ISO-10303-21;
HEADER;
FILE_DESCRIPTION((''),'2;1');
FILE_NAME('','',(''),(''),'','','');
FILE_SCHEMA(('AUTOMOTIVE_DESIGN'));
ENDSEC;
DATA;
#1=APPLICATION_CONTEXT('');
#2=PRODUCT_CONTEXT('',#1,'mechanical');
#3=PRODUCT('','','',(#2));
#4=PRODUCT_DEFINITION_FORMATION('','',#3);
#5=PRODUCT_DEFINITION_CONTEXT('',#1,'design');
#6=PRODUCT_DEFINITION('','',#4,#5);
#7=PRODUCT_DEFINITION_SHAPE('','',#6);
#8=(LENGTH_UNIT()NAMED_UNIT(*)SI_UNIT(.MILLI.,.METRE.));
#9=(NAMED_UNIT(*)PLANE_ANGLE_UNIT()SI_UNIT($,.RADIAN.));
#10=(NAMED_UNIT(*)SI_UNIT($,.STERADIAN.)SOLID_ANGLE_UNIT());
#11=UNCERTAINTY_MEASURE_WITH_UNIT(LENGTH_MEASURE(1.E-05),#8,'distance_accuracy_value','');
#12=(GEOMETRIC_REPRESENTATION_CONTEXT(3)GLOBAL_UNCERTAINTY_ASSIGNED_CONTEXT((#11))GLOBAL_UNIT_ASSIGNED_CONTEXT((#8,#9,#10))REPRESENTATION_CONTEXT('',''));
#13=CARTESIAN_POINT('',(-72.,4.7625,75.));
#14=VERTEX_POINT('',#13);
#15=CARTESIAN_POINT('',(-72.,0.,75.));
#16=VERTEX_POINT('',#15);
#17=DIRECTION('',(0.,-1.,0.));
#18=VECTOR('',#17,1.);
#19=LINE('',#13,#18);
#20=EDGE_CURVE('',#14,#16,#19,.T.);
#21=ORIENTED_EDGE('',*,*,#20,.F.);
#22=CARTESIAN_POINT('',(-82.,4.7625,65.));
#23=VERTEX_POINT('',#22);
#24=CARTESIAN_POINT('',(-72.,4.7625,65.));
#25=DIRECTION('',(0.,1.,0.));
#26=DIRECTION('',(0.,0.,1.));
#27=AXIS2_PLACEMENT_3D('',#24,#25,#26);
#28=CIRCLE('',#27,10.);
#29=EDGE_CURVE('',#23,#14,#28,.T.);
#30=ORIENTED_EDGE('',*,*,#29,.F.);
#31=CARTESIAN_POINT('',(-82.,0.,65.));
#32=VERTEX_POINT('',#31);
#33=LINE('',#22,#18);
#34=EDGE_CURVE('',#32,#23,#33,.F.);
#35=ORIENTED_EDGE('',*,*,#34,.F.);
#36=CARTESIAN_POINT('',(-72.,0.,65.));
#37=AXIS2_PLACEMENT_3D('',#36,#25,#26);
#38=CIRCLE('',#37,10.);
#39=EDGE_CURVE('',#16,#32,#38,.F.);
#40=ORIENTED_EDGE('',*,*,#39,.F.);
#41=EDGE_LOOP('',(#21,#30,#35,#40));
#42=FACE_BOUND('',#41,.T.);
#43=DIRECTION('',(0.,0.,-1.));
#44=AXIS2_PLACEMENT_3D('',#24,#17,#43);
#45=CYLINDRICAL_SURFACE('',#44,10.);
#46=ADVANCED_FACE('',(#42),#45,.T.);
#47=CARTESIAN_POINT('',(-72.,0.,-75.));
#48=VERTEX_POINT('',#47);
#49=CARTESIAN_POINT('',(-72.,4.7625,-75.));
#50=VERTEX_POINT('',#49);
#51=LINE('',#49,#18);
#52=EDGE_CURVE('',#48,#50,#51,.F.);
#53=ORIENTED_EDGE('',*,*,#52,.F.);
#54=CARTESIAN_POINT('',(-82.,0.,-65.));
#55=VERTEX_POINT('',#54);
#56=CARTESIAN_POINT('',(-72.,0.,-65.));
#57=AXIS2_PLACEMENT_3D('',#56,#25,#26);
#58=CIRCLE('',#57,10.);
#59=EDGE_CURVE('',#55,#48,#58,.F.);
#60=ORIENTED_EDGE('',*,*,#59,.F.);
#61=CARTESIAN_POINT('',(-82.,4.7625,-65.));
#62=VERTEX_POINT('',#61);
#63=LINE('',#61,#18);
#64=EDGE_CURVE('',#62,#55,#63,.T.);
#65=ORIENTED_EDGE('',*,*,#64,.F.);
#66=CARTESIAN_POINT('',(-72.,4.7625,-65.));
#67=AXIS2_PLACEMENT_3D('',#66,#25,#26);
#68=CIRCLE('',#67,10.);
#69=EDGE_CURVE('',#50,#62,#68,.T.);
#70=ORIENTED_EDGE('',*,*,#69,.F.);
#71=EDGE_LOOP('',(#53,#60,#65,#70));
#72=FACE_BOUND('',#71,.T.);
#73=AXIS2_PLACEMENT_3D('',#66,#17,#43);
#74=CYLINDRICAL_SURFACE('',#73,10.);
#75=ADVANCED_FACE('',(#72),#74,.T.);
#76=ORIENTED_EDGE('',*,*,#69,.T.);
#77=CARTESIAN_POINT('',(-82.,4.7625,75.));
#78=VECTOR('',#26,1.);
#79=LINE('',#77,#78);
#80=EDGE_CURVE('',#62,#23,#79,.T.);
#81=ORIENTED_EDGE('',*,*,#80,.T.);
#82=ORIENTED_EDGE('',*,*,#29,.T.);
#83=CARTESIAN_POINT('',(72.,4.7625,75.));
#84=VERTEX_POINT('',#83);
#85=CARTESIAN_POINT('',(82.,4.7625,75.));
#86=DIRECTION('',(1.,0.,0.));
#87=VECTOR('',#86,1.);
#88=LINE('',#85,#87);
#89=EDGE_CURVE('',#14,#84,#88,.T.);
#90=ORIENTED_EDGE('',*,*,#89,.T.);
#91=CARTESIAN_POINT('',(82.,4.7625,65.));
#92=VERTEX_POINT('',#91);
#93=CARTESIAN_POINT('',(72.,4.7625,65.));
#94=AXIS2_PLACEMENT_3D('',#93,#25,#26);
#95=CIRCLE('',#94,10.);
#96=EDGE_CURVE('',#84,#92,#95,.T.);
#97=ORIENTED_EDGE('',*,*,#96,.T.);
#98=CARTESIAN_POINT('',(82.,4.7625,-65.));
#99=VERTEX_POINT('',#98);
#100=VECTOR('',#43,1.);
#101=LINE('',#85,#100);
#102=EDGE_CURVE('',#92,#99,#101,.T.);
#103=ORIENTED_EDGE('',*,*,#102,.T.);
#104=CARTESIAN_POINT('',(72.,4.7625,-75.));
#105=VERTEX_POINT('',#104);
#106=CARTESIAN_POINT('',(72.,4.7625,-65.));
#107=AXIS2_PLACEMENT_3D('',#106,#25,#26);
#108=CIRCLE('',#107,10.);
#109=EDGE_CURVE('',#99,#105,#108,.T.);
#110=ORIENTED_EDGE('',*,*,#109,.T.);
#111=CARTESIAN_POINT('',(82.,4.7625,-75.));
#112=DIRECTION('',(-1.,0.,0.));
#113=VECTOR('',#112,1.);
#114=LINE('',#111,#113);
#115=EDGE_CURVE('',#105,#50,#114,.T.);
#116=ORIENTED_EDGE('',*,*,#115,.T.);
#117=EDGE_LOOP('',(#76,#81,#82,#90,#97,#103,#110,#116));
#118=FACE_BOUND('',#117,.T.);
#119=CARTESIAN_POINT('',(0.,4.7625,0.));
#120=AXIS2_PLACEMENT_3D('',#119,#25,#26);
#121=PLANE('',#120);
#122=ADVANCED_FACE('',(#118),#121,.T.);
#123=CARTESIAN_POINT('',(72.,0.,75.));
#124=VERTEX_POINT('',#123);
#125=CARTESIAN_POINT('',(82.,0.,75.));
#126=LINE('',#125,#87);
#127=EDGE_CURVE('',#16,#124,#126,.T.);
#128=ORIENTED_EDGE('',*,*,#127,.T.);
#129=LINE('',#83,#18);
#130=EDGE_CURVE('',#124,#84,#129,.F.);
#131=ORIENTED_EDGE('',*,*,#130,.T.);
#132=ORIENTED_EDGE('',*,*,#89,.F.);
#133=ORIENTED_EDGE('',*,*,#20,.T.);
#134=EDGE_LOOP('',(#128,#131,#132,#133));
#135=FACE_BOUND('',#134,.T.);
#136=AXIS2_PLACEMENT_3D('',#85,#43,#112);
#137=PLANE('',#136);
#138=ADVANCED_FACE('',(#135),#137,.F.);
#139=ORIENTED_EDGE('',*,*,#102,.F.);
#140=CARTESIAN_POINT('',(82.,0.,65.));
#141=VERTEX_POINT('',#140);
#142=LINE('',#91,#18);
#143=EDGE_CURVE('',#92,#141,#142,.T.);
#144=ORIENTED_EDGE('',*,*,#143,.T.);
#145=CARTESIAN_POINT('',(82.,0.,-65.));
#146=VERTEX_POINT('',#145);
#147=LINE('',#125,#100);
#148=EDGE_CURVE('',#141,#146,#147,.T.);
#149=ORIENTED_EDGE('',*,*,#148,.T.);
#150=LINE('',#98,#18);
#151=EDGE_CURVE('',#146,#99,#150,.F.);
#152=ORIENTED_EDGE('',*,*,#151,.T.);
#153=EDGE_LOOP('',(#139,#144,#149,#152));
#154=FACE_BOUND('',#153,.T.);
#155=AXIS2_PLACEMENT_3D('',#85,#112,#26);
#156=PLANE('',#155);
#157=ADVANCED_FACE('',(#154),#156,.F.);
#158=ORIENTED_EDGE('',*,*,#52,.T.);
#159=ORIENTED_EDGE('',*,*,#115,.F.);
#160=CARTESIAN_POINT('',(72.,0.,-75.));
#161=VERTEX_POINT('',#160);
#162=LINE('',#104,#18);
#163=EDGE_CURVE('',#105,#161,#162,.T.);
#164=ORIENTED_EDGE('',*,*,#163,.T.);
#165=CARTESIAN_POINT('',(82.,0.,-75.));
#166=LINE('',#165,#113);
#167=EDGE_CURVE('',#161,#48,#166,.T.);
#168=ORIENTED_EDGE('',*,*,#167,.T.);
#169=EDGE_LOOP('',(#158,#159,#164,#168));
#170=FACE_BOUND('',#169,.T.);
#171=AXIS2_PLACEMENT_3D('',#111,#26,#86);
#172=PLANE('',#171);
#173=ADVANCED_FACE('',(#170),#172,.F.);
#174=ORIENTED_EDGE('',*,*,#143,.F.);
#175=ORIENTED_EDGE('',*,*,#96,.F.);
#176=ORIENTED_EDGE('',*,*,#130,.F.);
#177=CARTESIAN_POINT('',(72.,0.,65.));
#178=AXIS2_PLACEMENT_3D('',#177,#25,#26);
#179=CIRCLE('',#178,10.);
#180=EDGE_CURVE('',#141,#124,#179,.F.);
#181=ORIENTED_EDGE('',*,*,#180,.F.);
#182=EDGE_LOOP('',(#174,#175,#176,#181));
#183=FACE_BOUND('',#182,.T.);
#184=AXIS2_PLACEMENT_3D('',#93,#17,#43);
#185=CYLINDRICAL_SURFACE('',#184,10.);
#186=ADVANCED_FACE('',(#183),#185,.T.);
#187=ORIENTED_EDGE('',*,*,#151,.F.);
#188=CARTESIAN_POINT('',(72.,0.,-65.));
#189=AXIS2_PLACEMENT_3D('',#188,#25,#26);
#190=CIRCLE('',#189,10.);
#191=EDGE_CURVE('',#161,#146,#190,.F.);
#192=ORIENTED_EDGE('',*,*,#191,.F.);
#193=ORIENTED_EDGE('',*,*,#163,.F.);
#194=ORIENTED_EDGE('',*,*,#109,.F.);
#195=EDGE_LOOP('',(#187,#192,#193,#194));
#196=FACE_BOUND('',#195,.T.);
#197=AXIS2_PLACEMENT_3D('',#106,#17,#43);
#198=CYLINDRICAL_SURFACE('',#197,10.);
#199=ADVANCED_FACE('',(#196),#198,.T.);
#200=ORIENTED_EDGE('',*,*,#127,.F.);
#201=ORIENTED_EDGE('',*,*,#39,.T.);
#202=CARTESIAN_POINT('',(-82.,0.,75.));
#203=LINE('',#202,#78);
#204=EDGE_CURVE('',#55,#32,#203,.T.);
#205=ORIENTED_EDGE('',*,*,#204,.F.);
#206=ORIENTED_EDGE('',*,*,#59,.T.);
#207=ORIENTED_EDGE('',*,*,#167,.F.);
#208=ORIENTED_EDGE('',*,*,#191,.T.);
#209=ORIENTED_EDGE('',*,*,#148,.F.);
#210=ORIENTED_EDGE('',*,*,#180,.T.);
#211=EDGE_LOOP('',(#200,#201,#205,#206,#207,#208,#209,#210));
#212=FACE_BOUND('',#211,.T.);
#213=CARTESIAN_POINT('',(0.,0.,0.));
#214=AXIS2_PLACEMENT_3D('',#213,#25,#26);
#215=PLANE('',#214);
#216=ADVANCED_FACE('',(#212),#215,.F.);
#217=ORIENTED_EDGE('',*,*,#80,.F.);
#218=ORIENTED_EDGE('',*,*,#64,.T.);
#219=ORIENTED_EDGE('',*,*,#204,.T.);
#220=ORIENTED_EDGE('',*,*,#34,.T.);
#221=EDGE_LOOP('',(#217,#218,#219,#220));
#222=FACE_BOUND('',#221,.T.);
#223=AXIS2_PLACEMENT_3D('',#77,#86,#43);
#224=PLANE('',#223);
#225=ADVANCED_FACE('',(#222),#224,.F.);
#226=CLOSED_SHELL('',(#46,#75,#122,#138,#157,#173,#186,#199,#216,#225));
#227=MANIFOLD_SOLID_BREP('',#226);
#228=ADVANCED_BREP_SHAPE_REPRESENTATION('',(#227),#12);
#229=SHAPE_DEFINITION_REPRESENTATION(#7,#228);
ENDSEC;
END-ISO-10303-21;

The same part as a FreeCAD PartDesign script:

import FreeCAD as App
import Part
import Sketcher


def edges_at(feature, points):
    """Names of the edges that pass closest to the given points."""
    edges = feature.Shape.Edges
    near = lambda p: min(range(len(edges)), key=lambda i: edges[i].distToShape(Part.Vertex(*p))[0])
    return sorted({f"Edge{near(p) + 1}" for p in points})


def add_polygon(sketch, points):
    """Adds a closed chain of lines whose ends are joined by coincident constraints."""
    first, n = sketch.GeometryCount, len(points)
    for a, b in zip(points, points[1:] + points[:1]):
        sketch.addGeometry(Part.LineSegment(App.Vector(*a, 0), App.Vector(*b, 0)), False)
    for i in range(n):
        sketch.addConstraint(Sketcher.Constraint("Coincident", first + i, 2, first + (i + 1) % n, 1))

doc = App.newDocument("Part")
body = doc.addObject("PartDesign::Body", "Body")

sketch1 = body.newObject("Sketcher::SketchObject", "Sketch")
sketch1.AttachmentSupport = (doc.getObject("XZ_Plane"), [""])
sketch1.MapMode = "FlatFace"
add_polygon(sketch1, [(-82, -75), (-82, 75), (82, 75), (82, -75)])
sketch1.addConstraint(Sketcher.Constraint("Vertical", 0))
sketch1.addConstraint(Sketcher.Constraint("Horizontal", 1))
sketch1.addConstraint(Sketcher.Constraint("Vertical", 2))
sketch1.addConstraint(Sketcher.Constraint("Horizontal", 3))
sketch1.addConstraint(Sketcher.Constraint("Symmetric", 0, 2, 2, 2, -1, 1))
sketch1.addConstraint(Sketcher.Constraint("DistanceX", 1, 1, 1, 2, 164.0))
sketch1.addConstraint(Sketcher.Constraint("DistanceY", 0, 1, 0, 2, 150.0))
pad1 = body.newObject("PartDesign::Pad", "Pad")
pad1.Profile = sketch1
pad1.Length = 4.7625
pad1.Reversed = True
doc.recompute()

fillet = body.newObject("PartDesign::Fillet", "Fillet")
fillet.Base = (pad1, edges_at(pad1, [
    (-82, 2.381, -75),
    (82, 2.381, -75),
    (82, 2.381, 75),
    (-82, 2.381, 75),
]))
fillet.Radius = 10

doc.recompute()
